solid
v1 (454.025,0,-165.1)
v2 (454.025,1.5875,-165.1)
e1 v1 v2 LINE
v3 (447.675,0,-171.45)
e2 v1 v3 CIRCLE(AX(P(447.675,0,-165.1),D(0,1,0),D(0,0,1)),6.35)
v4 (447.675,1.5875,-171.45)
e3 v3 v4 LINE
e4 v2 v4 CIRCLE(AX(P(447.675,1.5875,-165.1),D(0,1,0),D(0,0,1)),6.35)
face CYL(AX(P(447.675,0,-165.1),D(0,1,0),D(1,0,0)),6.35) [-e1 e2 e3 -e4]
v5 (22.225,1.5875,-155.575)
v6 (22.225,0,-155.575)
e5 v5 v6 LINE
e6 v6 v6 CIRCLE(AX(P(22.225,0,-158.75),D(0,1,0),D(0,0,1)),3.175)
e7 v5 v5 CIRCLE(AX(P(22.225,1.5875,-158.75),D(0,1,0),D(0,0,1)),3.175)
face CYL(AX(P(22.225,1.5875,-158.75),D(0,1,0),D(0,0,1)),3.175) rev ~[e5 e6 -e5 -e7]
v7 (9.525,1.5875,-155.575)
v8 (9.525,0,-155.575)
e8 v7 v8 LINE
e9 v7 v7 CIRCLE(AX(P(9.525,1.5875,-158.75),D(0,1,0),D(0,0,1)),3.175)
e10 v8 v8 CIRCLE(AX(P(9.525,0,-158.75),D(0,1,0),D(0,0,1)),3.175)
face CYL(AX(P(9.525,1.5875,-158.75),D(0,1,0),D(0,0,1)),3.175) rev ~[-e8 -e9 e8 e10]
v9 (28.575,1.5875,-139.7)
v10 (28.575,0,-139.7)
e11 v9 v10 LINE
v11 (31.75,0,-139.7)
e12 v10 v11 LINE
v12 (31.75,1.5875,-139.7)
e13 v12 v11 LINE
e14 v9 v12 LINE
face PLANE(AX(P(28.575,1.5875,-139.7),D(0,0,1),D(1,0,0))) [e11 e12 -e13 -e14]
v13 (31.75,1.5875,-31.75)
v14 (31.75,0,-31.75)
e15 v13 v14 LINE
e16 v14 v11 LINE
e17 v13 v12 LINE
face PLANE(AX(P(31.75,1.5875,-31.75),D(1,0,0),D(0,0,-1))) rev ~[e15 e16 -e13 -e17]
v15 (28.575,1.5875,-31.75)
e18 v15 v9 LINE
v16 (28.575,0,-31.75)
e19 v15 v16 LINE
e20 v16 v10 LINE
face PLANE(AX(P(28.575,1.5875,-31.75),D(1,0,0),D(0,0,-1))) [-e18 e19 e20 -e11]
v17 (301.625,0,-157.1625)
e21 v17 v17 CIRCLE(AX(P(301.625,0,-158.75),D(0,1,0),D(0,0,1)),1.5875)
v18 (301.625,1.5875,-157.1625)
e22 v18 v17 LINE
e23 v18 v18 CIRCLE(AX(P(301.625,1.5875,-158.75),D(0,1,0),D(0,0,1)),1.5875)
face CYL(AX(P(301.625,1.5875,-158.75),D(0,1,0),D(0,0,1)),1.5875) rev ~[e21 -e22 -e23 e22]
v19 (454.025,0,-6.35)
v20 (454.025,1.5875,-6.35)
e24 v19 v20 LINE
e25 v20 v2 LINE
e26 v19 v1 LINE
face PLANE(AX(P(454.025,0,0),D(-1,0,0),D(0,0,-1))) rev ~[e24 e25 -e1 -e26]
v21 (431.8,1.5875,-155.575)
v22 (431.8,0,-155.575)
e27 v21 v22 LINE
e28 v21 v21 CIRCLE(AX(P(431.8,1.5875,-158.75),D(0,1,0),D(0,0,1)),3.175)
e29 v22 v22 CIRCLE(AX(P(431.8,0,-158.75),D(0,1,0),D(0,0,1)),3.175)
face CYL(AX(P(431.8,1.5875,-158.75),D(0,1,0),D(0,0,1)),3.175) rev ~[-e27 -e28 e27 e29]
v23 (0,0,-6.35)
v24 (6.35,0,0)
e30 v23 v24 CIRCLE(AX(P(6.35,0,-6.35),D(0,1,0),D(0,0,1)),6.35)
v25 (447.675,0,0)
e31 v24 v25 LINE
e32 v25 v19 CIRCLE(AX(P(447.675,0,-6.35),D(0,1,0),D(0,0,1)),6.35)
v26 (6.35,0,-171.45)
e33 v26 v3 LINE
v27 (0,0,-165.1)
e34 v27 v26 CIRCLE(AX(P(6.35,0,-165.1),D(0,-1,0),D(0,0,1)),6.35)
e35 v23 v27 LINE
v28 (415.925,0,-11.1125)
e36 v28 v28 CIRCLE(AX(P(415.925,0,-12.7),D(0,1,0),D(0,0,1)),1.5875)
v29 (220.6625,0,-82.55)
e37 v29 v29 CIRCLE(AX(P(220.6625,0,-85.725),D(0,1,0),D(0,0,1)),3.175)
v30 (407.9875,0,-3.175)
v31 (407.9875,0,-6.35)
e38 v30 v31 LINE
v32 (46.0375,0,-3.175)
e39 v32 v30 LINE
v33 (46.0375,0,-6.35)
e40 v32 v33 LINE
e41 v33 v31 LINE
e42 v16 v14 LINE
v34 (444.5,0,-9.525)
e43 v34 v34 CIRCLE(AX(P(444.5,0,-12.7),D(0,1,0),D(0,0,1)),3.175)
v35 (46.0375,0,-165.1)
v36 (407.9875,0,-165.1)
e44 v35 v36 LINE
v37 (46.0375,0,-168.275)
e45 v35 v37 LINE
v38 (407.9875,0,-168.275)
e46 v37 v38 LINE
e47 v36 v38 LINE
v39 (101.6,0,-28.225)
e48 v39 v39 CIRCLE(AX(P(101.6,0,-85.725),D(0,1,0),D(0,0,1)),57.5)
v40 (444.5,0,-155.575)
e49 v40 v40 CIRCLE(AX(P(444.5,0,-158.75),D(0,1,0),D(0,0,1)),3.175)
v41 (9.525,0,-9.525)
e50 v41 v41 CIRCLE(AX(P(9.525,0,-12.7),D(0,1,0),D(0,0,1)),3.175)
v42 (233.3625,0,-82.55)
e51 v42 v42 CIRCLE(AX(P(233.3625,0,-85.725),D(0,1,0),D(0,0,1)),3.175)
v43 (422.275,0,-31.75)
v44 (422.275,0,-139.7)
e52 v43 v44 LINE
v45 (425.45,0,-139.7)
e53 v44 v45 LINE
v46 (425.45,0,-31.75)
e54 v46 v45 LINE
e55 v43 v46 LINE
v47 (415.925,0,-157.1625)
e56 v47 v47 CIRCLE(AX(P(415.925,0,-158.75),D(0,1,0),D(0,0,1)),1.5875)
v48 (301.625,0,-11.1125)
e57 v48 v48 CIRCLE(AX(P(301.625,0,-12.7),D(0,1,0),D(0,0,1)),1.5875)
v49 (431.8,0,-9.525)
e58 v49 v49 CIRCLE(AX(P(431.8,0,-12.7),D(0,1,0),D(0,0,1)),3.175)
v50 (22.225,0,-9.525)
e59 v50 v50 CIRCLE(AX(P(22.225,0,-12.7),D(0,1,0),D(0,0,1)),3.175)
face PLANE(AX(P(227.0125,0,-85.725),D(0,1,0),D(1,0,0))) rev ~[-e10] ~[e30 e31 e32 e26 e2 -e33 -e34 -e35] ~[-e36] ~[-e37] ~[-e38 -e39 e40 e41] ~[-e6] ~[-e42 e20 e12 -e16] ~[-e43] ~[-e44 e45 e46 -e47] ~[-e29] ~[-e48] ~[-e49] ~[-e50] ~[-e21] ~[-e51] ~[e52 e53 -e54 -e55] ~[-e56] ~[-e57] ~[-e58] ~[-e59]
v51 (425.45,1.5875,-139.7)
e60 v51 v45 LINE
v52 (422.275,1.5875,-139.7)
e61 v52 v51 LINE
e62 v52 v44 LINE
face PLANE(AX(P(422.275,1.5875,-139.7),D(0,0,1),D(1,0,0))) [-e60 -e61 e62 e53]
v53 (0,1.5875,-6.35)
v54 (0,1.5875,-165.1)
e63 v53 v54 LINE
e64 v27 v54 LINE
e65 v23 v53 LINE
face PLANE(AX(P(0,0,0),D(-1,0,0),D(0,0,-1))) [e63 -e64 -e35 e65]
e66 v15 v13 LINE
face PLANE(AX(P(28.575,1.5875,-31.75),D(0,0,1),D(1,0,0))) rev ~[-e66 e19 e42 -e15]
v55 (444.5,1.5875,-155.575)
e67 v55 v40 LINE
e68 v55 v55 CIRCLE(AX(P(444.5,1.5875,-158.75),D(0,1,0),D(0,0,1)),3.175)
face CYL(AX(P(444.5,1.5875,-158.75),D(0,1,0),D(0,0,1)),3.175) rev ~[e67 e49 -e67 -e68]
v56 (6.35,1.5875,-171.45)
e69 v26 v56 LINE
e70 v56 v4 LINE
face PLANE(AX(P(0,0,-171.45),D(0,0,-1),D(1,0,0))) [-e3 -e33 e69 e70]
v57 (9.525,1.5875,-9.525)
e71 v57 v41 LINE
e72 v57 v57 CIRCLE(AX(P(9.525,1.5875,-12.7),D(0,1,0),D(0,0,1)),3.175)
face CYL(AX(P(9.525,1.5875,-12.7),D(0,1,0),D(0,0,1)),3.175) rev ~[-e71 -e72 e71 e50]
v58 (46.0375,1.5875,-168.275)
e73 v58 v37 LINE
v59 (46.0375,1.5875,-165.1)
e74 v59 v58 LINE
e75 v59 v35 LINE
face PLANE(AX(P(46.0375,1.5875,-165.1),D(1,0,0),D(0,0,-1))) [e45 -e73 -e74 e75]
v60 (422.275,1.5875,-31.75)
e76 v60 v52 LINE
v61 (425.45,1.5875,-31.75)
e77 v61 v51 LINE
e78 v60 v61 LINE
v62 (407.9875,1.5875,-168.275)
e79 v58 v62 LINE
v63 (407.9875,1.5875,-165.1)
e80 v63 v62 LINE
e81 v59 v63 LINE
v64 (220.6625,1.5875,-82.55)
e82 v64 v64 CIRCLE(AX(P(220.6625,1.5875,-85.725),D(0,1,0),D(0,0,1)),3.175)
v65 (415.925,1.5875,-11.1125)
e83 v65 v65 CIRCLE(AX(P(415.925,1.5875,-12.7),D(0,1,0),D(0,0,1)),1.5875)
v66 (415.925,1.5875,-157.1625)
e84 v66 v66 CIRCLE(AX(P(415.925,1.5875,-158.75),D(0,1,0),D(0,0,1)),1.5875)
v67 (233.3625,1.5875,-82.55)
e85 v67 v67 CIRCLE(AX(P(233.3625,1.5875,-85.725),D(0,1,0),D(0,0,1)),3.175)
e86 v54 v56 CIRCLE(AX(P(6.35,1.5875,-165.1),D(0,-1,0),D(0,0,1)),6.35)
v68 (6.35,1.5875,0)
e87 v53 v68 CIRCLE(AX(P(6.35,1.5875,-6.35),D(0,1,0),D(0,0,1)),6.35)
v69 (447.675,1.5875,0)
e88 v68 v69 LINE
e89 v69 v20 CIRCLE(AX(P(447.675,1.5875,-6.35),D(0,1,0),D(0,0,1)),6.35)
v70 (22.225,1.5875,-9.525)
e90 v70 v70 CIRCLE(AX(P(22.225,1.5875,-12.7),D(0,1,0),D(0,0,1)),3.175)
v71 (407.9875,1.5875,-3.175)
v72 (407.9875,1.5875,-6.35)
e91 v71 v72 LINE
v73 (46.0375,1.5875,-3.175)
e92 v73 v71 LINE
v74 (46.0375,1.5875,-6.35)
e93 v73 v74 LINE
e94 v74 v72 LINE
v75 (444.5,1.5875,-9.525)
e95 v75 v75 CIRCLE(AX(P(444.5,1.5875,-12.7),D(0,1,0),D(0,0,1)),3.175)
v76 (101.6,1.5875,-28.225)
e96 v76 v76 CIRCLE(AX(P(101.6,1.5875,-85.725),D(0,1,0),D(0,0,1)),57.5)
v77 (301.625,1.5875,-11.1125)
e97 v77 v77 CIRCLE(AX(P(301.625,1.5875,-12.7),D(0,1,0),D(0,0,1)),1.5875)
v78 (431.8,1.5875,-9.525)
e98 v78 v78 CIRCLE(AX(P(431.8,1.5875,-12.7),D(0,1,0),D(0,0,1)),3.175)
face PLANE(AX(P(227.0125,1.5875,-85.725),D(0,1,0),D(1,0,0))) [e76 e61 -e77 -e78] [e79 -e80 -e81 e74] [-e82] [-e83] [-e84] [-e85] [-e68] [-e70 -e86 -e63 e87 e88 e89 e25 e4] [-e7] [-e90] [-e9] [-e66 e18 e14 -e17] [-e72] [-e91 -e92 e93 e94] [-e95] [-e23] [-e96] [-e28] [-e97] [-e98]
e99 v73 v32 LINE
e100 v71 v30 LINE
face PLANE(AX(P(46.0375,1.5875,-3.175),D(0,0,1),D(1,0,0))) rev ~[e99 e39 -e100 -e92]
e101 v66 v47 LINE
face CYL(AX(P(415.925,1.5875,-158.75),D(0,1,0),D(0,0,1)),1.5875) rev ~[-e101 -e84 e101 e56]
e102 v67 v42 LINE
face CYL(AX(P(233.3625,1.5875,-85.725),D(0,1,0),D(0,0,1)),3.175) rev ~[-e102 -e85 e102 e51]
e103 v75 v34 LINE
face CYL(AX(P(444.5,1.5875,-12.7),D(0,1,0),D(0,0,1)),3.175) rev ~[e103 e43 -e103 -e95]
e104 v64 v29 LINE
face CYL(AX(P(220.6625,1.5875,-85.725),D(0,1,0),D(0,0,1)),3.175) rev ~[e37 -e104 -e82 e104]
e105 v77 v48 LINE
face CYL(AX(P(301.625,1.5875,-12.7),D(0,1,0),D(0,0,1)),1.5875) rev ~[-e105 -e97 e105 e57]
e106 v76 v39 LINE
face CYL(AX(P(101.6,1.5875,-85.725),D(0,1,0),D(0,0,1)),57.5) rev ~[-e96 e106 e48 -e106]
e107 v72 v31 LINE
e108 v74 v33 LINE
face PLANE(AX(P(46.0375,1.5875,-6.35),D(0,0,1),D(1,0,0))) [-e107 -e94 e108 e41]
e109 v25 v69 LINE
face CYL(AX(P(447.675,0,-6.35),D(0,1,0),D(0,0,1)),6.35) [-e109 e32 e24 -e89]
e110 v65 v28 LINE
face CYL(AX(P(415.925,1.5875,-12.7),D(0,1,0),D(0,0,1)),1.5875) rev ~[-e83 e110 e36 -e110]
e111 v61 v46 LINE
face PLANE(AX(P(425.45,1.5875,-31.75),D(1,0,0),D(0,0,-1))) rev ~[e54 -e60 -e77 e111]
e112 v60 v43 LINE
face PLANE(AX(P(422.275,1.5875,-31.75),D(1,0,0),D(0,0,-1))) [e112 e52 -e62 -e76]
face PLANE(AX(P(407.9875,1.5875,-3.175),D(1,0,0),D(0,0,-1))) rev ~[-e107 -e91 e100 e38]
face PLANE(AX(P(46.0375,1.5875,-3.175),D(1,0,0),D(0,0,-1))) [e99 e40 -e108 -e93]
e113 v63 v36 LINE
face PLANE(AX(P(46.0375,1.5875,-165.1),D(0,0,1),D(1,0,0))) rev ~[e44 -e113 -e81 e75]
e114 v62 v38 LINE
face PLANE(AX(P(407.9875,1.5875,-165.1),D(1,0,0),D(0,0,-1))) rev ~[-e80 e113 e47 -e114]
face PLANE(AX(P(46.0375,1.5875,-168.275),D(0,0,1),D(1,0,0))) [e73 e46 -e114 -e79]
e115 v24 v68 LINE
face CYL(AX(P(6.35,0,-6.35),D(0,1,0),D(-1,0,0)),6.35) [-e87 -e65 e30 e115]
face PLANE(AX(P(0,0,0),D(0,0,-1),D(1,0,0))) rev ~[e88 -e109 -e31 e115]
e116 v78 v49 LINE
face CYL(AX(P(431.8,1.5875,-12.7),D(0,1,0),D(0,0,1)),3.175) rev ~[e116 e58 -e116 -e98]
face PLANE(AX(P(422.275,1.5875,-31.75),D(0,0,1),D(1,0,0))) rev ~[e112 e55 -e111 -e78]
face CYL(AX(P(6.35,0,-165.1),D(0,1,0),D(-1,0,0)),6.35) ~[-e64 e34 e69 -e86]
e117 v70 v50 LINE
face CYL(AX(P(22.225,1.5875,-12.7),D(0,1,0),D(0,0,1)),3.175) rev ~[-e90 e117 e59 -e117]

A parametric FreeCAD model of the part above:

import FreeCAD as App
import Part
import Sketcher
Q = App.Units.Quantity


def edges_at(feature, points):
    """Names of the edges that pass closest to the given points."""
    edges = feature.Shape.Edges
    near = lambda p: min(range(len(edges)), key=lambda i: edges[i].distToShape(Part.Vertex(*p))[0])
    return sorted({f"Edge{near(p) + 1}" for p in points})

doc = App.newDocument("Part")
params = doc.addObject("Spreadsheet::Sheet", "Params")
for row, (alias, value) in enumerate([
    ("sketch1_height", "6.75 in"),
    ("sketch1_width", "17.875 in"),
    ("pad1_length", "0.0625 in"),
    ("fillet_radius", "0.25 in"),
    ("sketch2_width", "14.25 in"),
    ("sketch2_height", "4.25 in"),
    ("sketch3_diameter", "0.25 in"),
    ("sketch4_diameter", "0.125 in"),
], start=1):
    params.set(f"A{row}", alias)
    params.set(f"B{row}", "=" + value)
    params.setAlias(f"B{row}", alias)

body = doc.addObject("PartDesign::Body", "Body")

# Sketch on XZ plane
sketch1 = body.newObject("Sketcher::SketchObject", "Sketch")
sketch1.AttachmentSupport = (doc.getObject("XZ_Plane"), [""])
sketch1.MapMode = "FlatFace"
sketch1.addGeometry([
    Part.LineSegment(App.Vector(0, -171, 0), App.Vector(0, 0, 0)),
    Part.LineSegment(App.Vector(0, 0, 0), App.Vector(454, 0, 0)),
    Part.LineSegment(App.Vector(454, 0, 0), App.Vector(454, -171, 0)),
    Part.LineSegment(App.Vector(454, -171, 0), App.Vector(0, -171, 0)),
], False)
sketch1.addConstraint([
    Sketcher.Constraint("Coincident", 0, 2, 1, 1),
    Sketcher.Constraint("Coincident", 1, 2, 2, 1),
    Sketcher.Constraint("Coincident", 2, 2, 3, 1),
    Sketcher.Constraint("Coincident", 3, 2, 0, 1),
    Sketcher.Constraint("Vertical", 0),
    Sketcher.Constraint("Horizontal", 1),
    Sketcher.Constraint("Vertical", 2),
    Sketcher.Constraint("Horizontal", 3),
    Sketcher.Constraint("Coincident", 0, 2, -1, 1),
    Sketcher.Constraint("DistanceY", 0, 1, 0, 2, Q("6.75 in")),
    Sketcher.Constraint("DistanceX", 1, 1, 1, 2, Q("17.875 in")),
])
sketch1.setExpression("Constraints[9]", "Params.sketch1_height")
sketch1.setExpression("Constraints[10]", "Params.sketch1_width")
pad1 = body.newObject("PartDesign::Pad", "Pad")
pad1.Profile = sketch1
pad1.setExpression("Length", "Params.pad1_length")
pad1.Reversed = True
doc.recompute()

fillet = body.newObject("PartDesign::Fillet", "Fillet")
fillet.Base = (pad1, edges_at(pad1, [
    (0, 0.794, -171.45),
    (454.025, 0.794, -171.45),
    (454.025, 0.794, 0),
    (0, 0.794, 0),
]))
fillet.setExpression("Radius", "Params.fillet_radius")

# Sketch on XZ plane
sketch2 = body.newObject("Sketcher::SketchObject", "Sketch001")
sketch2.AttachmentSupport = (doc.getObject("XZ_Plane"), [""])
sketch2.MapMode = "FlatFace"
sketch2.AttachmentOffset = App.Placement(App.Vector(0, 0, -0.0625 * 25.4), App.Rotation())
sketch2.addGeometry([
    Part.LineSegment(App.Vector(46, -168.3, 0), App.Vector(46, -165.1, 0)),  # 0
    Part.LineSegment(App.Vector(46, -165.1, 0), App.Vector(408, -165.1, 0)),  # 1
    Part.LineSegment(App.Vector(408, -165.1, 0), App.Vector(408, -168.3, 0)),  # 2
    Part.LineSegment(App.Vector(408, -168.3, 0), App.Vector(46, -168.3, 0)),  # 3
    Part.LineSegment(App.Vector(28.6, -139.7, 0), App.Vector(28.6, -31.8, 0)),  # 4
    Part.LineSegment(App.Vector(28.6, -31.8, 0), App.Vector(31.8, -31.8, 0)),  # 5
    Part.LineSegment(App.Vector(31.8, -31.8, 0), App.Vector(31.8, -139.7, 0)),  # 6
    Part.LineSegment(App.Vector(31.8, -139.7, 0), App.Vector(28.6, -139.7, 0)),  # 7
    Part.LineSegment(App.Vector(46, -6.3, 0), App.Vector(46, -3.2, 0)),  # 8
    Part.LineSegment(App.Vector(46, -3.2, 0), App.Vector(408, -3.2, 0)),  # 9
    Part.LineSegment(App.Vector(408, -3.2, 0), App.Vector(408, -6.3, 0)),  # 10
    Part.LineSegment(App.Vector(408, -6.3, 0), App.Vector(46, -6.3, 0)),  # 11
    Part.LineSegment(App.Vector(422.3, -139.7, 0), App.Vector(422.3, -31.8, 0)),  # 12
    Part.LineSegment(App.Vector(422.3, -31.8, 0), App.Vector(425.4, -31.8, 0)),  # 13
    Part.LineSegment(App.Vector(425.4, -31.8, 0), App.Vector(425.4, -139.7, 0)),  # 14
    Part.LineSegment(App.Vector(425.4, -139.7, 0), App.Vector(422.3, -139.7, 0)),  # 15
], False)
sketch2.addConstraint([
    Sketcher.Constraint("Coincident", 0, 2, 1, 1),
    Sketcher.Constraint("Coincident", 1, 2, 2, 1),
    Sketcher.Constraint("Coincident", 2, 2, 3, 1),
    Sketcher.Constraint("Coincident", 3, 2, 0, 1),
    Sketcher.Constraint("Coincident", 4, 2, 5, 1),
    Sketcher.Constraint("Coincident", 5, 2, 6, 1),
    Sketcher.Constraint("Coincident", 6, 2, 7, 1),
    Sketcher.Constraint("Coincident", 7, 2, 4, 1),
    Sketcher.Constraint("Coincident", 8, 2, 9, 1),
    Sketcher.Constraint("Coincident", 9, 2, 10, 1),
    Sketcher.Constraint("Coincident", 10, 2, 11, 1),
    Sketcher.Constraint("Coincident", 11, 2, 8, 1),
    Sketcher.Constraint("Coincident", 12, 2, 13, 1),
    Sketcher.Constraint("Coincident", 13, 2, 14, 1),
    Sketcher.Constraint("Coincident", 14, 2, 15, 1),
    Sketcher.Constraint("Coincident", 15, 2, 12, 1),
    Sketcher.Constraint("Vertical", 0),
    Sketcher.Constraint("Horizontal", 1),
    Sketcher.Constraint("Vertical", 2),
    Sketcher.Constraint("Horizontal", 3),
    Sketcher.Constraint("Vertical", 4),
    Sketcher.Constraint("Horizontal", 5),
    Sketcher.Constraint("Vertical", 6),
    Sketcher.Constraint("Horizontal", 7),
    Sketcher.Constraint("Vertical", 8),
    Sketcher.Constraint("Horizontal", 9),
    Sketcher.Constraint("Vertical", 10),
    Sketcher.Constraint("Horizontal", 11),
    Sketcher.Constraint("Vertical", 12),
    Sketcher.Constraint("Horizontal", 13),
    Sketcher.Constraint("Vertical", 14),
    Sketcher.Constraint("Horizontal", 15),
    Sketcher.Constraint("Horizontal", 5, 2, 12, 2),
    Sketcher.Constraint("Horizontal", 7, 2, 14, 2),
    Sketcher.Constraint("Vertical", 3, 2, 8, 2),
    Sketcher.Constraint("Vertical", 2, 2, 9, 2),
    Sketcher.Constraint("Equal", 7, 13),
    Sketcher.Constraint("Equal", 15, 0),
    Sketcher.Constraint("Equal", 2, 8),
    Sketcher.Constraint("DistanceY", 0, 2, 6, 2, Q("1 in")),
    Sketcher.Constraint("DistanceY", 5, 2, 10, 2, Q("1 in")),
    Sketcher.Constraint("DistanceX", 1, 1, 1, 2, Q("14.25 in")),
    Sketcher.Constraint("DistanceY", 4, 1, 4, 2, Q("4.25 in")),
    Sketcher.Constraint("DistanceY", 0, 2, -1, 1, Q("6.5 in")),
    Sketcher.Constraint("DistanceY", 2, 2, 9, 2, Q("6.5 in")),
    Sketcher.Constraint("DistanceX", -1, 1, 5, 2, Q("1.25 in")),
    Sketcher.Constraint("DistanceX", -1, 1, 13, 2, Q("16.75 in")),
    Sketcher.Constraint("DistanceX", -1, 1, 0, 2, Q("1.8125 in")),
])
sketch2.setExpression("Constraints[41]", "Params.sketch2_width")
sketch2.setExpression("Constraints[42]", "Params.sketch2_height")
pocket1 = body.newObject("PartDesign::Pocket", "Pocket")
pocket1.Profile = sketch2
pocket1.Type = "ThroughAll"
pocket1.Reversed = True

# Sketch on XZ plane
sketch3 = body.newObject("Sketcher::SketchObject", "Sketch002")
sketch3.AttachmentSupport = (doc.getObject("XZ_Plane"), [""])
sketch3.MapMode = "FlatFace"
sketch3.AttachmentOffset = App.Placement(App.Vector(0, 0, -0.0625 * 25.4), App.Rotation())
sketch3.addGeometry([
    Part.Circle(App.Vector(9.5, -158.8, 0), App.Vector(0, 0, 1), 3.2),  # 0
    Part.Circle(App.Vector(22.2, -158.8, 0), App.Vector(0, 0, 1), 3.2),  # 1
    Part.Circle(App.Vector(431.8, -158.8, 0), App.Vector(0, 0, 1), 3.2),  # 2
    Part.Circle(App.Vector(444.5, -158.8, 0), App.Vector(0, 0, 1), 3.2),  # 3
    Part.Circle(App.Vector(431.8, -12.7, 0), App.Vector(0, 0, 1), 3.2),  # 4
    Part.Circle(App.Vector(444.5, -12.7, 0), App.Vector(0, 0, 1), 3.2),  # 5
    Part.Circle(App.Vector(9.5, -12.7, 0), App.Vector(0, 0, 1), 3.2),  # 6
    Part.Circle(App.Vector(22.2, -12.7, 0), App.Vector(0, 0, 1), 3.2),  # 7
    Part.Circle(App.Vector(220.7, -85.7, 0), App.Vector(0, 0, 1), 3.2),  # 8
    Part.Circle(App.Vector(233.4, -85.7, 0), App.Vector(0, 0, 1), 3.2),  # 9
], False)
sketch3.addConstraint([
    Sketcher.Constraint("Equal", 0, 1),
    Sketcher.Constraint("Equal", 1, 2),
    Sketcher.Constraint("Equal", 2, 3),
    Sketcher.Constraint("Equal", 3, 4),
    Sketcher.Constraint("Equal", 4, 5),
    Sketcher.Constraint("Equal", 5, 6),
    Sketcher.Constraint("Equal", 6, 7),
    Sketcher.Constraint("Equal", 7, 8),
    Sketcher.Constraint("Equal", 8, 9),
    Sketcher.Constraint("Horizontal", 0, 3, 1, 3),
    Sketcher.Constraint("Horizontal", 1, 3, 2, 3),
    Sketcher.Constraint("Horizontal", 2, 3, 3, 3),
    Sketcher.Constraint("Horizontal", 4, 3, 5, 3),
    Sketcher.Constraint("Horizontal", 5, 3, 6, 3),
    Sketcher.Constraint("Horizontal", 6, 3, 7, 3),
    Sketcher.Constraint("Horizontal", 8, 3, 9, 3),
    Sketcher.Constraint("Vertical", 2, 3, 4, 3),
    Sketcher.Constraint("Vertical", 3, 3, 5, 3),
    Sketcher.Constraint("Vertical", 0, 3, 6, 3),
    Sketcher.Constraint("Vertical", 1, 3, 7, 3),
    Sketcher.Constraint("Diameter", 0, Q("0.25 in")),
    Sketcher.Constraint("DistanceX", -1, 1, 2, 3, Q("17 in")),
    Sketcher.Constraint("DistanceX", -1, 1, 3, 3, Q("17.5 in")),
    Sketcher.Constraint("DistanceY", 4, 3, -1, 1, Q("0.5 in")),
    Sketcher.Constraint("DistanceX", 0, 3, 1, 3, Q("0.5 in")),
    Sketcher.Constraint("DistanceX", 8, 3, 9, 3, Q("0.5 in")),
    Sketcher.Constraint("DistanceY", 0, 3, -1, 1, Q("6.25 in")),
    Sketcher.Constraint("DistanceX", -1, 1, 0, 3, Q("0.375 in")),
    Sketcher.Constraint("DistanceX", -1, 1, 8, 3, Q("8.6875 in")),
    Sketcher.Constraint("DistanceY", 8, 3, -1, 1, Q("3.375 in")),
])
sketch3.setExpression("Constraints[20]", "Params.sketch3_diameter")
pocket2 = body.newObject("PartDesign::Pocket", "Pocket001")
pocket2.Profile = sketch3
pocket2.Type = "ThroughAll"
pocket2.Reversed = True

# Sketch on XZ plane
sketch4 = body.newObject("Sketcher::SketchObject", "Sketch003")
sketch4.AttachmentSupport = (doc.getObject("XZ_Plane"), [""])
sketch4.MapMode = "FlatFace"
sketch4.AttachmentOffset = App.Placement(App.Vector(0, 0, -0.0625 * 25.4), App.Rotation())
sketch4.addGeometry([
    Part.Circle(App.Vector(301.6, -158.8, 0), App.Vector(0, 0, 1), 1.6),
    Part.Circle(App.Vector(415.9, -158.8, 0), App.Vector(0, 0, 1), 1.6),
    Part.Circle(App.Vector(415.9, -12.7, 0), App.Vector(0, 0, 1), 1.6),
    Part.Circle(App.Vector(301.6, -12.7, 0), App.Vector(0, 0, 1), 1.6),
], False)
sketch4.addConstraint([
    Sketcher.Constraint("Equal", 0, 1),
    Sketcher.Constraint("Equal", 1, 2),
    Sketcher.Constraint("Equal", 2, 3),
    Sketcher.Constraint("Horizontal", 0, 3, 1, 3),
    Sketcher.Constraint("Horizontal", 2, 3, 3, 3),
    Sketcher.Constraint("Vertical", 1, 3, 2, 3),
    Sketcher.Constraint("Vertical", 0, 3, 3, 3),
    Sketcher.Constraint("Diameter", 0, Q("0.125 in")),
    Sketcher.Constraint("DistanceY", 2, 3, -1, 1, Q("0.5 in")),
    Sketcher.Constraint("DistanceX", 0, 3, 1, 3, Q("4.5 in")),
    Sketcher.Constraint("DistanceY", 0, 3, -1, 1, Q("6.25 in")),
    Sketcher.Constraint("DistanceX", -1, 1, 0, 3, Q("11.875 in")),
])
sketch4.setExpression("Constraints[7]", "Params.sketch4_diameter")
pocket3 = body.newObject("PartDesign::Pocket", "Pocket002")
pocket3.Profile = sketch4
pocket3.Type = "ThroughAll"
pocket3.Reversed = True

# Sketch on XZ plane
sketch5 = body.newObject("Sketcher::SketchObject", "Sketch004")
sketch5.AttachmentSupport = (doc.getObject("XZ_Plane"), [""])
sketch5.MapMode = "FlatFace"
sketch5.AttachmentOffset = App.Placement(App.Vector(0, 0, -0.0625 * 25.4), App.Rotation())
sketch5.addGeometry(Part.Circle(App.Vector(102, -86, 0), App.Vector(0, 0, 1), 58), False)
sketch5.addConstraint([
    Sketcher.Constraint("DistanceX", -1, 1, 0, 3, Q("4 in")),
    Sketcher.Constraint("Diameter", 0, 115.0),
    Sketcher.Constraint("DistanceY", 0, 3, -1, 1, Q("3.375 in")),
])
pocket4 = body.newObject("PartDesign::Pocket", "Pocket003")
pocket4.Profile = sketch5
pocket4.Type = "ThroughAll"
pocket4.Reversed = True

doc.recompute()
